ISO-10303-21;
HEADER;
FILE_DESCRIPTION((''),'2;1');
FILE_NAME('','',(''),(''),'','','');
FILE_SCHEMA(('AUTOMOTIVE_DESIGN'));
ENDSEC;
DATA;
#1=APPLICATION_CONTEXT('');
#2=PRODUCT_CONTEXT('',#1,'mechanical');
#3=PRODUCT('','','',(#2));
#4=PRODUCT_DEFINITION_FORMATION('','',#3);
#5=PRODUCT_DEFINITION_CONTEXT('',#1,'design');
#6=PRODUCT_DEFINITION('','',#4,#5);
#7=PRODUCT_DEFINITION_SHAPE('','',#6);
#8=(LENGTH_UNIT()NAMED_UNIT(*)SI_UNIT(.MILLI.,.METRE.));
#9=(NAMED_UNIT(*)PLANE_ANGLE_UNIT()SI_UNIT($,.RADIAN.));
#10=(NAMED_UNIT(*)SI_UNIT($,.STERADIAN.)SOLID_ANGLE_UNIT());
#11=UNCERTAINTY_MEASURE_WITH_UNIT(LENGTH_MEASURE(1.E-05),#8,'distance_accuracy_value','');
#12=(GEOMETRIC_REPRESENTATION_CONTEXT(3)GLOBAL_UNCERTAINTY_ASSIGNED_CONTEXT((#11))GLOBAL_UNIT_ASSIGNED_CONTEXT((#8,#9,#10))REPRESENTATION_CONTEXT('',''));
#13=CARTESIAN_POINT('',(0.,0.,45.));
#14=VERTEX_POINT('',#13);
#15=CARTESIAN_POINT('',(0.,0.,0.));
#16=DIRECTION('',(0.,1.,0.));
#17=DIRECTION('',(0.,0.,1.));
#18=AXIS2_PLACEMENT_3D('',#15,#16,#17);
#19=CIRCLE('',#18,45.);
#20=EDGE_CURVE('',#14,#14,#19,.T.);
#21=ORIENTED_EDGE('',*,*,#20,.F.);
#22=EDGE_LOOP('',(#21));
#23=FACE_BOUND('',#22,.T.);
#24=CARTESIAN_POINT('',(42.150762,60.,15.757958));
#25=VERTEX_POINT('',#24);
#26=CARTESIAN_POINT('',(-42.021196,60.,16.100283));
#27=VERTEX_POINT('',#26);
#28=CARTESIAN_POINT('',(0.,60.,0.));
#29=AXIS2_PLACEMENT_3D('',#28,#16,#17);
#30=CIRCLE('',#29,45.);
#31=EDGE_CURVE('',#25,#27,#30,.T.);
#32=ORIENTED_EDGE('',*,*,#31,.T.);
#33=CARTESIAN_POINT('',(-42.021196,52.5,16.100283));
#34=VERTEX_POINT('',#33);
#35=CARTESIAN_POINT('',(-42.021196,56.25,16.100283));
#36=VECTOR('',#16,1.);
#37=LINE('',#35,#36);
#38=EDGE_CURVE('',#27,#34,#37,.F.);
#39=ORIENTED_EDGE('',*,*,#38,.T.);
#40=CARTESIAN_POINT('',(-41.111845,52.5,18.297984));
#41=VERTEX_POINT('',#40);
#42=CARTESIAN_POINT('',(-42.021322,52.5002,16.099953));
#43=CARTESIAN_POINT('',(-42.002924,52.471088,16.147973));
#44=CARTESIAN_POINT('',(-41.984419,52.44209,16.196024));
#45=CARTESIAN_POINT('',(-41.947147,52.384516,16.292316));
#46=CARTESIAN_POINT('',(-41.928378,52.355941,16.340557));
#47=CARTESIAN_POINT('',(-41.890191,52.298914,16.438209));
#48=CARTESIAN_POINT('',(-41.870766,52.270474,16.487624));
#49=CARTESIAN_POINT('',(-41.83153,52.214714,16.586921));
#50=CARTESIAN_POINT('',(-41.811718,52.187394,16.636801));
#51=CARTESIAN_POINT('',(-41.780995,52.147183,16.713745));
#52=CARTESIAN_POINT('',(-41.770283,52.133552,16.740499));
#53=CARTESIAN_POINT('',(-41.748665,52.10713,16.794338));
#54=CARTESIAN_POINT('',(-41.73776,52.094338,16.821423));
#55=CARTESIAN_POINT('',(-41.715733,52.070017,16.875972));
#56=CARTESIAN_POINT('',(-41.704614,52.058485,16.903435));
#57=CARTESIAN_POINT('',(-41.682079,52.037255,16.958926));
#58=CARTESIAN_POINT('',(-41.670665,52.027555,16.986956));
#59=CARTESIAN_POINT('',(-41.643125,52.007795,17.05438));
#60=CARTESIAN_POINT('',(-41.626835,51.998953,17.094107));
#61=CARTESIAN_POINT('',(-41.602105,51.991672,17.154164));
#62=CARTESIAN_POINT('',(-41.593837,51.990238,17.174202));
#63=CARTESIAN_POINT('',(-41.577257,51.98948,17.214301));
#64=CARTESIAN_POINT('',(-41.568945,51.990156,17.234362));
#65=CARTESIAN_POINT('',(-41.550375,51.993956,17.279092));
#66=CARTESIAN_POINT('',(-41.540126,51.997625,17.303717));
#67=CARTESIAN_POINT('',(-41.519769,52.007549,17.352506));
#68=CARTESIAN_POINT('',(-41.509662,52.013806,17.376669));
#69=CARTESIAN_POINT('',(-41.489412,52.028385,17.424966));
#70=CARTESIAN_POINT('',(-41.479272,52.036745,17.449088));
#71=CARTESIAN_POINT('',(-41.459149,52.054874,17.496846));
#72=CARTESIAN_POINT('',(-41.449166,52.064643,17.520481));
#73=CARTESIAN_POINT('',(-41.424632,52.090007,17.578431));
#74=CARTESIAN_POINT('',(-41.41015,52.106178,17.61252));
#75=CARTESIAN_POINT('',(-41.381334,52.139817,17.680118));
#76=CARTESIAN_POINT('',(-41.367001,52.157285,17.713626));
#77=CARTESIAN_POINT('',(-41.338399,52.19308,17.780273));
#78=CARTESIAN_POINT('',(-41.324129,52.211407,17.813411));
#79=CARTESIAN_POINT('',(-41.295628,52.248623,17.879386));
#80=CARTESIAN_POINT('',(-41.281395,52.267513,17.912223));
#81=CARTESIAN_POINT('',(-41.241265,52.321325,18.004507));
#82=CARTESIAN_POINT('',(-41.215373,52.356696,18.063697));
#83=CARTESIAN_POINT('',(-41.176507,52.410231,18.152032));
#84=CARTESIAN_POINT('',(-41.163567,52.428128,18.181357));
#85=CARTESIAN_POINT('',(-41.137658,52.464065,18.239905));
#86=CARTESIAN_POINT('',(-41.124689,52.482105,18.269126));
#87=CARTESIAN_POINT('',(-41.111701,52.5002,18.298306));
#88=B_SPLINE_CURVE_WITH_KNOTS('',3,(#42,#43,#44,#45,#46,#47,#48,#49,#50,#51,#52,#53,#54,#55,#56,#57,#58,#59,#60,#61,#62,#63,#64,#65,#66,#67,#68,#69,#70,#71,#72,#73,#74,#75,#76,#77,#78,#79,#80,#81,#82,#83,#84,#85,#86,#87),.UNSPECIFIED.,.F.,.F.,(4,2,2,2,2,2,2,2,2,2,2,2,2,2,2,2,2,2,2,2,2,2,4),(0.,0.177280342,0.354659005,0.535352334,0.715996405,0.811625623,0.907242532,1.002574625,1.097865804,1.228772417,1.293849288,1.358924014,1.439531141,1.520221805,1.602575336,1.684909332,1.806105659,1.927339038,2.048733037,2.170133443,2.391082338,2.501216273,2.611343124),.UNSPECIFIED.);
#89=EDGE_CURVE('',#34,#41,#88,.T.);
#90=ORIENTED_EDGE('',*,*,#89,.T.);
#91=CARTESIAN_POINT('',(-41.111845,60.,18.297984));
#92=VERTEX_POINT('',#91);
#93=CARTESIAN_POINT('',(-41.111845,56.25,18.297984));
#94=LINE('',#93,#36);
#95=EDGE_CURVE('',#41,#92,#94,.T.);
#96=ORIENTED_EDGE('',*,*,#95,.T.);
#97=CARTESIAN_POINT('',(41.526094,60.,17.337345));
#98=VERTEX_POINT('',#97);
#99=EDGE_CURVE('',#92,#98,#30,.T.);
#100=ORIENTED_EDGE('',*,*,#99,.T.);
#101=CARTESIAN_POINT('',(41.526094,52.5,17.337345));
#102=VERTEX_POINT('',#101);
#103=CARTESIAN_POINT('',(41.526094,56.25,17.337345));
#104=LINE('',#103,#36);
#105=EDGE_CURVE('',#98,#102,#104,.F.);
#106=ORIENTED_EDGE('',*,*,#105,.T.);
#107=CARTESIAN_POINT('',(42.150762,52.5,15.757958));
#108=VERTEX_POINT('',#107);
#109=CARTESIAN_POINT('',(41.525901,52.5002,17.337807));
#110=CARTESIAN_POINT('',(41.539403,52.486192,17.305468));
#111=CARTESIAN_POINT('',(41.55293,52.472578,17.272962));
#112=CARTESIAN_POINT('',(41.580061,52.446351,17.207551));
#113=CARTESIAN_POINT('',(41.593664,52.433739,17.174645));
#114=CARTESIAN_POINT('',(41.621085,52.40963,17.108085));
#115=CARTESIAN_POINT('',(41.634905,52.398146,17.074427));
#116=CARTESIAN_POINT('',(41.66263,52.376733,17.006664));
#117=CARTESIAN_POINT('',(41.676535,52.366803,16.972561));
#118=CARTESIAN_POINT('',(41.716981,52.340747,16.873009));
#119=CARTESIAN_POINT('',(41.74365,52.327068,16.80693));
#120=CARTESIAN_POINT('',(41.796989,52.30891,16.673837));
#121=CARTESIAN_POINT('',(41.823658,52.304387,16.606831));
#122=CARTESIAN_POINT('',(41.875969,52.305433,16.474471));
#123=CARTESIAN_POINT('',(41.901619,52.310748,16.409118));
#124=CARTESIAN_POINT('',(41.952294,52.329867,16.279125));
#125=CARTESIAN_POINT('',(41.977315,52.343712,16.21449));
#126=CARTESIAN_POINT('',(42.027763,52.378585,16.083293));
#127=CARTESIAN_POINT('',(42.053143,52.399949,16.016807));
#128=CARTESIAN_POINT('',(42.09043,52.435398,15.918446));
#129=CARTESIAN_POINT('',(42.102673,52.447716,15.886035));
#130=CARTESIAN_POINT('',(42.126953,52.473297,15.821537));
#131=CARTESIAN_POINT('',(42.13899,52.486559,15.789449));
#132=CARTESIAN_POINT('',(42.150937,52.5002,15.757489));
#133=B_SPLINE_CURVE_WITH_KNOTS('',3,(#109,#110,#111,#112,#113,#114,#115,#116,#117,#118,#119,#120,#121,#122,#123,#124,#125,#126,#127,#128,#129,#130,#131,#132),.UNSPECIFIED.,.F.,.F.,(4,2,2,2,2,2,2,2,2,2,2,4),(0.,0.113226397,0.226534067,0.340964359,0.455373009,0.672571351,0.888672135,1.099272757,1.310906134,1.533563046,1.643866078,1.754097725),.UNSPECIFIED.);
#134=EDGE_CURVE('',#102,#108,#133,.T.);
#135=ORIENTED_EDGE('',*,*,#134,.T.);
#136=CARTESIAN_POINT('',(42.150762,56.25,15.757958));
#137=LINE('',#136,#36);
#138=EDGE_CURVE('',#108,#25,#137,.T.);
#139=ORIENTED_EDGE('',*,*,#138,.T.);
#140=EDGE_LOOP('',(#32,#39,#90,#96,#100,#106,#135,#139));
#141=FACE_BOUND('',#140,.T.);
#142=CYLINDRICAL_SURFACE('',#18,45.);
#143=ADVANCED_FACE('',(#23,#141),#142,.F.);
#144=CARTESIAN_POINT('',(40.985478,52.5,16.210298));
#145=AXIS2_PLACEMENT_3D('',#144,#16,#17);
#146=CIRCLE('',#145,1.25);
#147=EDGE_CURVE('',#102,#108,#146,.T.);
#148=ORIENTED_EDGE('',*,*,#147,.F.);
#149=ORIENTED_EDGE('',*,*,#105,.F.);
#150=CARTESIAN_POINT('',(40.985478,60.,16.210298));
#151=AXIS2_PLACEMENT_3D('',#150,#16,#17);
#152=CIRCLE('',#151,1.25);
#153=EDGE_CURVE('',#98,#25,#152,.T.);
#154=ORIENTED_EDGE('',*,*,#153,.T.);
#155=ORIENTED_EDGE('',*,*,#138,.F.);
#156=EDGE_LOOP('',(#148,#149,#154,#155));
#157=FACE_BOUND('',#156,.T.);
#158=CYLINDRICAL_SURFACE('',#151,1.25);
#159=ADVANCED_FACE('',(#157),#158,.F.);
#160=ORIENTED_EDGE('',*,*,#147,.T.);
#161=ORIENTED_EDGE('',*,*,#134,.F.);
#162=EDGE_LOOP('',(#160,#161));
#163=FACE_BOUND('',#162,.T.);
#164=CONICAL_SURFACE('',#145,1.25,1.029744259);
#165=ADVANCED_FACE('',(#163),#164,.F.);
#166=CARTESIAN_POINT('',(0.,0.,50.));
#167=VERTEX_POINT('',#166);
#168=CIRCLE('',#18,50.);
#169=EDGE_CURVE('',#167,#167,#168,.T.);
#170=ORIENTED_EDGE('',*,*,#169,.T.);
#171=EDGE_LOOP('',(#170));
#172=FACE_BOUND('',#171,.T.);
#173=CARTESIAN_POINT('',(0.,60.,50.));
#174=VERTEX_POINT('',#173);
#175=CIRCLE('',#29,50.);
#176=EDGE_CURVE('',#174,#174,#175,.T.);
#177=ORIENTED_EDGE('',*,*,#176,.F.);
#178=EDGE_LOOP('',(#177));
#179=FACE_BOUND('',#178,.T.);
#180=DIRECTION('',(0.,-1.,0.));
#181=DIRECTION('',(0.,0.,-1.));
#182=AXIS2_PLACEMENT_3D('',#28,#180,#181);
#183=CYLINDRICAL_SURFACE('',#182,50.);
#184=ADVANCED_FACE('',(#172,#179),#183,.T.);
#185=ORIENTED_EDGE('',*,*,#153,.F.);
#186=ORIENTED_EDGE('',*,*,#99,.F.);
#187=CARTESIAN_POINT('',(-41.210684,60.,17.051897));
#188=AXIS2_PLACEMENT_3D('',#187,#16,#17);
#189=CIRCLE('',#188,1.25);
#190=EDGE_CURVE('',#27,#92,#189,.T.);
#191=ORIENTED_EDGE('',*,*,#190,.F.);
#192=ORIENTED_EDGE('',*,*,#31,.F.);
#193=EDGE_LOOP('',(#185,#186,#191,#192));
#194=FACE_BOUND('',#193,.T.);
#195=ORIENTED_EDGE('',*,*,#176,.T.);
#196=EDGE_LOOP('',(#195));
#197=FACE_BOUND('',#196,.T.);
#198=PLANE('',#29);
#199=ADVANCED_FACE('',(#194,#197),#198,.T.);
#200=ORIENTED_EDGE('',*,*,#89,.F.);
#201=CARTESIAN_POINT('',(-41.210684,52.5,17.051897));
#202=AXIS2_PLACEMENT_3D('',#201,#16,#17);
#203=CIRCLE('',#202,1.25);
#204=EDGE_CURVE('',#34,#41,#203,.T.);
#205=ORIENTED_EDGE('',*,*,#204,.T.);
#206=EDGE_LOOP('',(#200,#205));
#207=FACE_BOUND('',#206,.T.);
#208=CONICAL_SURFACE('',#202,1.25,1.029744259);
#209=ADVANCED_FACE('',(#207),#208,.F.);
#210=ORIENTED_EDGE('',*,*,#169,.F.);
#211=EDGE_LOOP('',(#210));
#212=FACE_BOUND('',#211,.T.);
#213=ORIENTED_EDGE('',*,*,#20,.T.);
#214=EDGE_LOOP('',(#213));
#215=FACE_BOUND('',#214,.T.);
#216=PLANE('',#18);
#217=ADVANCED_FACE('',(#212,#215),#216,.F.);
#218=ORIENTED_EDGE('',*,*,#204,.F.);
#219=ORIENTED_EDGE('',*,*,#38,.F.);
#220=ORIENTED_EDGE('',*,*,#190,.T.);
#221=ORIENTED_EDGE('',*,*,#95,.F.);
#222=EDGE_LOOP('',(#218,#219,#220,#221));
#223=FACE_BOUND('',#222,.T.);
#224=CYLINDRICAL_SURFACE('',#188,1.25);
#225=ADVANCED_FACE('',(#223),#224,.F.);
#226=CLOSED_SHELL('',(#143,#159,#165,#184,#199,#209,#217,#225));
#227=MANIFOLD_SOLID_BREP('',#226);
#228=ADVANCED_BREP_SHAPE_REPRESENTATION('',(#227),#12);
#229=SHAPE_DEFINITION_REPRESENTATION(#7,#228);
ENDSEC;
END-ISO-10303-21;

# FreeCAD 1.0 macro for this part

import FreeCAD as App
import Part
import Sketcher

doc = App.newDocument("Part")
body = doc.addObject("PartDesign::Body", "Body")

sketch1 = body.newObject("Sketcher::SketchObject", "Sketch")
sketch1.AttachmentSupport = (doc.getObject("XZ_Plane"), [""])
sketch1.MapMode = "FlatFace"
sketch1.addGeometry(Part.Circle(App.Vector(0, 0, 0), App.Vector(0, 0, 1), 50), False)
sketch1.addConstraint(Sketcher.Constraint("Coincident", 0, 3, -1, 1))
sketch1.addConstraint(Sketcher.Constraint("Diameter", 0, 100.0))
pad1 = body.newObject("PartDesign::Pad", "Pad")
pad1.Profile = sketch1
pad1.Length = 60
pad1.Reversed = True

sketch2 = body.newObject("Sketcher::SketchObject", "Sketch001")
sketch2.AttachmentSupport = (doc.getObject("XZ_Plane"), [""])
sketch2.MapMode = "FlatFace"
sketch2.AttachmentOffset = App.Placement(App.Vector(0, 0, -60), App.Rotation())
sketch2.addGeometry(Part.Circle(App.Vector(0, 0, 0), App.Vector(0, 0, 1), 45), False)
sketch2.addConstraint(Sketcher.Constraint("Coincident", 0, 3, -1, 1))
sketch2.addConstraint(Sketcher.Constraint("Diameter", 0, 90.0))
pocket1 = body.newObject("PartDesign::Pocket", "Pocket")
pocket1.Profile = sketch2
pocket1.Type = "ThroughAll"
pocket1.Reversed = True

sketch3 = body.newObject("Sketcher::SketchObject", "Sketch002")
sketch3.AttachmentSupport = (doc.getObject("XZ_Plane"), [""])
sketch3.MapMode = "FlatFace"
sketch3.AttachmentOffset = App.Placement(App.Vector(0, 0, -60), App.Rotation())
sketch3.addGeometry(Part.Circle(App.Vector(0.6, 86.3, 0), App.Vector(0, 0, 1), 1.2), False)
sketch3.addGeometry(Part.Circle(App.Vector(-41.2, 17.1, 0), App.Vector(0, 0, 1), 1.2), False)
sketch3.addGeometry(Part.Circle(App.Vector(41, 16.2, 0), App.Vector(0, 0, 1), 1.2), False)
sketch3.addGeometry(Part.Circle(App.Vector(-290.7, 15.9, 0), App.Vector(0, 0, 1), 1.2), False)
sketch3.addGeometry(Part.Circle(App.Vector(-208.5, 16.3, 0), App.Vector(0, 0, 1), 1.2), False)
sketch3.addGeometry(Part.Circle(App.Vector(-250.3, 87, 0), App.Vector(0, 0, 1), 1.2), False)
sketch3.addConstraint(Sketcher.Constraint("Equal", 0, 1))
sketch3.addConstraint(Sketcher.Constraint("Equal", 1, 2))
sketch3.addConstraint(Sketcher.Constraint("Equal", 2, 3))
sketch3.addConstraint(Sketcher.Constraint("Equal", 3, 4))
sketch3.addConstraint(Sketcher.Constraint("Equal", 4, 5))
sketch3.addConstraint(Sketcher.Constraint("Diameter", 0, 2.5))
sketch3.addConstraint(Sketcher.Constraint("DistanceY", -1, 1, 2, 3, 16.210298))
sketch3.addConstraint(Sketcher.Constraint("DistanceY", 2, 3, 1, 3, 0.841599))
sketch3.addConstraint(Sketcher.Constraint("DistanceX", -1, 1, 0, 3, 0.588729))
sketch3.addConstraint(Sketcher.Constraint("DistanceY", -1, 1, 5, 3, 87.01491))
sketch3.addConstraint(Sketcher.Constraint("DistanceX", 0, 3, 2, 3, 40.396748))
sketch3.addConstraint(Sketcher.Constraint("DistanceX", 1, 3, 2, 3, 82.196162))
sketch3.addConstraint(Sketcher.Constraint("DistanceX", 3, 3, 1, 3, 249.478959))
sketch3.addConstraint(Sketcher.Constraint("DistanceY", 3, 3, 1, 3, 1.179342))
sketch3.addConstraint(Sketcher.Constraint("DistanceY", 3, 3, 4, 3, 0.380371))
sketch3.addConstraint(Sketcher.Constraint("DistanceX", 3, 3, 5, 3, 40.41575))
sketch3.addConstraint(Sketcher.Constraint("DistanceY", 0, 3, 5, 3, 0.671368))
sketch3.addConstraint(Sketcher.Constraint("DistanceX", 4, 3, -1, 1, 208.529497))
doc.recompute()
hole = body.newObject("PartDesign::Hole", "Hole")
hole.Profile = sketch3
hole.ThreadType = "None"
hole.Diameter = 2.5
hole.DepthType = "Dimension"
hole.Depth = 7.5
hole.DrillPoint = "Angled"
hole.DrillPointAngle = 118
hole.Reversed = True

doc.recompute()
